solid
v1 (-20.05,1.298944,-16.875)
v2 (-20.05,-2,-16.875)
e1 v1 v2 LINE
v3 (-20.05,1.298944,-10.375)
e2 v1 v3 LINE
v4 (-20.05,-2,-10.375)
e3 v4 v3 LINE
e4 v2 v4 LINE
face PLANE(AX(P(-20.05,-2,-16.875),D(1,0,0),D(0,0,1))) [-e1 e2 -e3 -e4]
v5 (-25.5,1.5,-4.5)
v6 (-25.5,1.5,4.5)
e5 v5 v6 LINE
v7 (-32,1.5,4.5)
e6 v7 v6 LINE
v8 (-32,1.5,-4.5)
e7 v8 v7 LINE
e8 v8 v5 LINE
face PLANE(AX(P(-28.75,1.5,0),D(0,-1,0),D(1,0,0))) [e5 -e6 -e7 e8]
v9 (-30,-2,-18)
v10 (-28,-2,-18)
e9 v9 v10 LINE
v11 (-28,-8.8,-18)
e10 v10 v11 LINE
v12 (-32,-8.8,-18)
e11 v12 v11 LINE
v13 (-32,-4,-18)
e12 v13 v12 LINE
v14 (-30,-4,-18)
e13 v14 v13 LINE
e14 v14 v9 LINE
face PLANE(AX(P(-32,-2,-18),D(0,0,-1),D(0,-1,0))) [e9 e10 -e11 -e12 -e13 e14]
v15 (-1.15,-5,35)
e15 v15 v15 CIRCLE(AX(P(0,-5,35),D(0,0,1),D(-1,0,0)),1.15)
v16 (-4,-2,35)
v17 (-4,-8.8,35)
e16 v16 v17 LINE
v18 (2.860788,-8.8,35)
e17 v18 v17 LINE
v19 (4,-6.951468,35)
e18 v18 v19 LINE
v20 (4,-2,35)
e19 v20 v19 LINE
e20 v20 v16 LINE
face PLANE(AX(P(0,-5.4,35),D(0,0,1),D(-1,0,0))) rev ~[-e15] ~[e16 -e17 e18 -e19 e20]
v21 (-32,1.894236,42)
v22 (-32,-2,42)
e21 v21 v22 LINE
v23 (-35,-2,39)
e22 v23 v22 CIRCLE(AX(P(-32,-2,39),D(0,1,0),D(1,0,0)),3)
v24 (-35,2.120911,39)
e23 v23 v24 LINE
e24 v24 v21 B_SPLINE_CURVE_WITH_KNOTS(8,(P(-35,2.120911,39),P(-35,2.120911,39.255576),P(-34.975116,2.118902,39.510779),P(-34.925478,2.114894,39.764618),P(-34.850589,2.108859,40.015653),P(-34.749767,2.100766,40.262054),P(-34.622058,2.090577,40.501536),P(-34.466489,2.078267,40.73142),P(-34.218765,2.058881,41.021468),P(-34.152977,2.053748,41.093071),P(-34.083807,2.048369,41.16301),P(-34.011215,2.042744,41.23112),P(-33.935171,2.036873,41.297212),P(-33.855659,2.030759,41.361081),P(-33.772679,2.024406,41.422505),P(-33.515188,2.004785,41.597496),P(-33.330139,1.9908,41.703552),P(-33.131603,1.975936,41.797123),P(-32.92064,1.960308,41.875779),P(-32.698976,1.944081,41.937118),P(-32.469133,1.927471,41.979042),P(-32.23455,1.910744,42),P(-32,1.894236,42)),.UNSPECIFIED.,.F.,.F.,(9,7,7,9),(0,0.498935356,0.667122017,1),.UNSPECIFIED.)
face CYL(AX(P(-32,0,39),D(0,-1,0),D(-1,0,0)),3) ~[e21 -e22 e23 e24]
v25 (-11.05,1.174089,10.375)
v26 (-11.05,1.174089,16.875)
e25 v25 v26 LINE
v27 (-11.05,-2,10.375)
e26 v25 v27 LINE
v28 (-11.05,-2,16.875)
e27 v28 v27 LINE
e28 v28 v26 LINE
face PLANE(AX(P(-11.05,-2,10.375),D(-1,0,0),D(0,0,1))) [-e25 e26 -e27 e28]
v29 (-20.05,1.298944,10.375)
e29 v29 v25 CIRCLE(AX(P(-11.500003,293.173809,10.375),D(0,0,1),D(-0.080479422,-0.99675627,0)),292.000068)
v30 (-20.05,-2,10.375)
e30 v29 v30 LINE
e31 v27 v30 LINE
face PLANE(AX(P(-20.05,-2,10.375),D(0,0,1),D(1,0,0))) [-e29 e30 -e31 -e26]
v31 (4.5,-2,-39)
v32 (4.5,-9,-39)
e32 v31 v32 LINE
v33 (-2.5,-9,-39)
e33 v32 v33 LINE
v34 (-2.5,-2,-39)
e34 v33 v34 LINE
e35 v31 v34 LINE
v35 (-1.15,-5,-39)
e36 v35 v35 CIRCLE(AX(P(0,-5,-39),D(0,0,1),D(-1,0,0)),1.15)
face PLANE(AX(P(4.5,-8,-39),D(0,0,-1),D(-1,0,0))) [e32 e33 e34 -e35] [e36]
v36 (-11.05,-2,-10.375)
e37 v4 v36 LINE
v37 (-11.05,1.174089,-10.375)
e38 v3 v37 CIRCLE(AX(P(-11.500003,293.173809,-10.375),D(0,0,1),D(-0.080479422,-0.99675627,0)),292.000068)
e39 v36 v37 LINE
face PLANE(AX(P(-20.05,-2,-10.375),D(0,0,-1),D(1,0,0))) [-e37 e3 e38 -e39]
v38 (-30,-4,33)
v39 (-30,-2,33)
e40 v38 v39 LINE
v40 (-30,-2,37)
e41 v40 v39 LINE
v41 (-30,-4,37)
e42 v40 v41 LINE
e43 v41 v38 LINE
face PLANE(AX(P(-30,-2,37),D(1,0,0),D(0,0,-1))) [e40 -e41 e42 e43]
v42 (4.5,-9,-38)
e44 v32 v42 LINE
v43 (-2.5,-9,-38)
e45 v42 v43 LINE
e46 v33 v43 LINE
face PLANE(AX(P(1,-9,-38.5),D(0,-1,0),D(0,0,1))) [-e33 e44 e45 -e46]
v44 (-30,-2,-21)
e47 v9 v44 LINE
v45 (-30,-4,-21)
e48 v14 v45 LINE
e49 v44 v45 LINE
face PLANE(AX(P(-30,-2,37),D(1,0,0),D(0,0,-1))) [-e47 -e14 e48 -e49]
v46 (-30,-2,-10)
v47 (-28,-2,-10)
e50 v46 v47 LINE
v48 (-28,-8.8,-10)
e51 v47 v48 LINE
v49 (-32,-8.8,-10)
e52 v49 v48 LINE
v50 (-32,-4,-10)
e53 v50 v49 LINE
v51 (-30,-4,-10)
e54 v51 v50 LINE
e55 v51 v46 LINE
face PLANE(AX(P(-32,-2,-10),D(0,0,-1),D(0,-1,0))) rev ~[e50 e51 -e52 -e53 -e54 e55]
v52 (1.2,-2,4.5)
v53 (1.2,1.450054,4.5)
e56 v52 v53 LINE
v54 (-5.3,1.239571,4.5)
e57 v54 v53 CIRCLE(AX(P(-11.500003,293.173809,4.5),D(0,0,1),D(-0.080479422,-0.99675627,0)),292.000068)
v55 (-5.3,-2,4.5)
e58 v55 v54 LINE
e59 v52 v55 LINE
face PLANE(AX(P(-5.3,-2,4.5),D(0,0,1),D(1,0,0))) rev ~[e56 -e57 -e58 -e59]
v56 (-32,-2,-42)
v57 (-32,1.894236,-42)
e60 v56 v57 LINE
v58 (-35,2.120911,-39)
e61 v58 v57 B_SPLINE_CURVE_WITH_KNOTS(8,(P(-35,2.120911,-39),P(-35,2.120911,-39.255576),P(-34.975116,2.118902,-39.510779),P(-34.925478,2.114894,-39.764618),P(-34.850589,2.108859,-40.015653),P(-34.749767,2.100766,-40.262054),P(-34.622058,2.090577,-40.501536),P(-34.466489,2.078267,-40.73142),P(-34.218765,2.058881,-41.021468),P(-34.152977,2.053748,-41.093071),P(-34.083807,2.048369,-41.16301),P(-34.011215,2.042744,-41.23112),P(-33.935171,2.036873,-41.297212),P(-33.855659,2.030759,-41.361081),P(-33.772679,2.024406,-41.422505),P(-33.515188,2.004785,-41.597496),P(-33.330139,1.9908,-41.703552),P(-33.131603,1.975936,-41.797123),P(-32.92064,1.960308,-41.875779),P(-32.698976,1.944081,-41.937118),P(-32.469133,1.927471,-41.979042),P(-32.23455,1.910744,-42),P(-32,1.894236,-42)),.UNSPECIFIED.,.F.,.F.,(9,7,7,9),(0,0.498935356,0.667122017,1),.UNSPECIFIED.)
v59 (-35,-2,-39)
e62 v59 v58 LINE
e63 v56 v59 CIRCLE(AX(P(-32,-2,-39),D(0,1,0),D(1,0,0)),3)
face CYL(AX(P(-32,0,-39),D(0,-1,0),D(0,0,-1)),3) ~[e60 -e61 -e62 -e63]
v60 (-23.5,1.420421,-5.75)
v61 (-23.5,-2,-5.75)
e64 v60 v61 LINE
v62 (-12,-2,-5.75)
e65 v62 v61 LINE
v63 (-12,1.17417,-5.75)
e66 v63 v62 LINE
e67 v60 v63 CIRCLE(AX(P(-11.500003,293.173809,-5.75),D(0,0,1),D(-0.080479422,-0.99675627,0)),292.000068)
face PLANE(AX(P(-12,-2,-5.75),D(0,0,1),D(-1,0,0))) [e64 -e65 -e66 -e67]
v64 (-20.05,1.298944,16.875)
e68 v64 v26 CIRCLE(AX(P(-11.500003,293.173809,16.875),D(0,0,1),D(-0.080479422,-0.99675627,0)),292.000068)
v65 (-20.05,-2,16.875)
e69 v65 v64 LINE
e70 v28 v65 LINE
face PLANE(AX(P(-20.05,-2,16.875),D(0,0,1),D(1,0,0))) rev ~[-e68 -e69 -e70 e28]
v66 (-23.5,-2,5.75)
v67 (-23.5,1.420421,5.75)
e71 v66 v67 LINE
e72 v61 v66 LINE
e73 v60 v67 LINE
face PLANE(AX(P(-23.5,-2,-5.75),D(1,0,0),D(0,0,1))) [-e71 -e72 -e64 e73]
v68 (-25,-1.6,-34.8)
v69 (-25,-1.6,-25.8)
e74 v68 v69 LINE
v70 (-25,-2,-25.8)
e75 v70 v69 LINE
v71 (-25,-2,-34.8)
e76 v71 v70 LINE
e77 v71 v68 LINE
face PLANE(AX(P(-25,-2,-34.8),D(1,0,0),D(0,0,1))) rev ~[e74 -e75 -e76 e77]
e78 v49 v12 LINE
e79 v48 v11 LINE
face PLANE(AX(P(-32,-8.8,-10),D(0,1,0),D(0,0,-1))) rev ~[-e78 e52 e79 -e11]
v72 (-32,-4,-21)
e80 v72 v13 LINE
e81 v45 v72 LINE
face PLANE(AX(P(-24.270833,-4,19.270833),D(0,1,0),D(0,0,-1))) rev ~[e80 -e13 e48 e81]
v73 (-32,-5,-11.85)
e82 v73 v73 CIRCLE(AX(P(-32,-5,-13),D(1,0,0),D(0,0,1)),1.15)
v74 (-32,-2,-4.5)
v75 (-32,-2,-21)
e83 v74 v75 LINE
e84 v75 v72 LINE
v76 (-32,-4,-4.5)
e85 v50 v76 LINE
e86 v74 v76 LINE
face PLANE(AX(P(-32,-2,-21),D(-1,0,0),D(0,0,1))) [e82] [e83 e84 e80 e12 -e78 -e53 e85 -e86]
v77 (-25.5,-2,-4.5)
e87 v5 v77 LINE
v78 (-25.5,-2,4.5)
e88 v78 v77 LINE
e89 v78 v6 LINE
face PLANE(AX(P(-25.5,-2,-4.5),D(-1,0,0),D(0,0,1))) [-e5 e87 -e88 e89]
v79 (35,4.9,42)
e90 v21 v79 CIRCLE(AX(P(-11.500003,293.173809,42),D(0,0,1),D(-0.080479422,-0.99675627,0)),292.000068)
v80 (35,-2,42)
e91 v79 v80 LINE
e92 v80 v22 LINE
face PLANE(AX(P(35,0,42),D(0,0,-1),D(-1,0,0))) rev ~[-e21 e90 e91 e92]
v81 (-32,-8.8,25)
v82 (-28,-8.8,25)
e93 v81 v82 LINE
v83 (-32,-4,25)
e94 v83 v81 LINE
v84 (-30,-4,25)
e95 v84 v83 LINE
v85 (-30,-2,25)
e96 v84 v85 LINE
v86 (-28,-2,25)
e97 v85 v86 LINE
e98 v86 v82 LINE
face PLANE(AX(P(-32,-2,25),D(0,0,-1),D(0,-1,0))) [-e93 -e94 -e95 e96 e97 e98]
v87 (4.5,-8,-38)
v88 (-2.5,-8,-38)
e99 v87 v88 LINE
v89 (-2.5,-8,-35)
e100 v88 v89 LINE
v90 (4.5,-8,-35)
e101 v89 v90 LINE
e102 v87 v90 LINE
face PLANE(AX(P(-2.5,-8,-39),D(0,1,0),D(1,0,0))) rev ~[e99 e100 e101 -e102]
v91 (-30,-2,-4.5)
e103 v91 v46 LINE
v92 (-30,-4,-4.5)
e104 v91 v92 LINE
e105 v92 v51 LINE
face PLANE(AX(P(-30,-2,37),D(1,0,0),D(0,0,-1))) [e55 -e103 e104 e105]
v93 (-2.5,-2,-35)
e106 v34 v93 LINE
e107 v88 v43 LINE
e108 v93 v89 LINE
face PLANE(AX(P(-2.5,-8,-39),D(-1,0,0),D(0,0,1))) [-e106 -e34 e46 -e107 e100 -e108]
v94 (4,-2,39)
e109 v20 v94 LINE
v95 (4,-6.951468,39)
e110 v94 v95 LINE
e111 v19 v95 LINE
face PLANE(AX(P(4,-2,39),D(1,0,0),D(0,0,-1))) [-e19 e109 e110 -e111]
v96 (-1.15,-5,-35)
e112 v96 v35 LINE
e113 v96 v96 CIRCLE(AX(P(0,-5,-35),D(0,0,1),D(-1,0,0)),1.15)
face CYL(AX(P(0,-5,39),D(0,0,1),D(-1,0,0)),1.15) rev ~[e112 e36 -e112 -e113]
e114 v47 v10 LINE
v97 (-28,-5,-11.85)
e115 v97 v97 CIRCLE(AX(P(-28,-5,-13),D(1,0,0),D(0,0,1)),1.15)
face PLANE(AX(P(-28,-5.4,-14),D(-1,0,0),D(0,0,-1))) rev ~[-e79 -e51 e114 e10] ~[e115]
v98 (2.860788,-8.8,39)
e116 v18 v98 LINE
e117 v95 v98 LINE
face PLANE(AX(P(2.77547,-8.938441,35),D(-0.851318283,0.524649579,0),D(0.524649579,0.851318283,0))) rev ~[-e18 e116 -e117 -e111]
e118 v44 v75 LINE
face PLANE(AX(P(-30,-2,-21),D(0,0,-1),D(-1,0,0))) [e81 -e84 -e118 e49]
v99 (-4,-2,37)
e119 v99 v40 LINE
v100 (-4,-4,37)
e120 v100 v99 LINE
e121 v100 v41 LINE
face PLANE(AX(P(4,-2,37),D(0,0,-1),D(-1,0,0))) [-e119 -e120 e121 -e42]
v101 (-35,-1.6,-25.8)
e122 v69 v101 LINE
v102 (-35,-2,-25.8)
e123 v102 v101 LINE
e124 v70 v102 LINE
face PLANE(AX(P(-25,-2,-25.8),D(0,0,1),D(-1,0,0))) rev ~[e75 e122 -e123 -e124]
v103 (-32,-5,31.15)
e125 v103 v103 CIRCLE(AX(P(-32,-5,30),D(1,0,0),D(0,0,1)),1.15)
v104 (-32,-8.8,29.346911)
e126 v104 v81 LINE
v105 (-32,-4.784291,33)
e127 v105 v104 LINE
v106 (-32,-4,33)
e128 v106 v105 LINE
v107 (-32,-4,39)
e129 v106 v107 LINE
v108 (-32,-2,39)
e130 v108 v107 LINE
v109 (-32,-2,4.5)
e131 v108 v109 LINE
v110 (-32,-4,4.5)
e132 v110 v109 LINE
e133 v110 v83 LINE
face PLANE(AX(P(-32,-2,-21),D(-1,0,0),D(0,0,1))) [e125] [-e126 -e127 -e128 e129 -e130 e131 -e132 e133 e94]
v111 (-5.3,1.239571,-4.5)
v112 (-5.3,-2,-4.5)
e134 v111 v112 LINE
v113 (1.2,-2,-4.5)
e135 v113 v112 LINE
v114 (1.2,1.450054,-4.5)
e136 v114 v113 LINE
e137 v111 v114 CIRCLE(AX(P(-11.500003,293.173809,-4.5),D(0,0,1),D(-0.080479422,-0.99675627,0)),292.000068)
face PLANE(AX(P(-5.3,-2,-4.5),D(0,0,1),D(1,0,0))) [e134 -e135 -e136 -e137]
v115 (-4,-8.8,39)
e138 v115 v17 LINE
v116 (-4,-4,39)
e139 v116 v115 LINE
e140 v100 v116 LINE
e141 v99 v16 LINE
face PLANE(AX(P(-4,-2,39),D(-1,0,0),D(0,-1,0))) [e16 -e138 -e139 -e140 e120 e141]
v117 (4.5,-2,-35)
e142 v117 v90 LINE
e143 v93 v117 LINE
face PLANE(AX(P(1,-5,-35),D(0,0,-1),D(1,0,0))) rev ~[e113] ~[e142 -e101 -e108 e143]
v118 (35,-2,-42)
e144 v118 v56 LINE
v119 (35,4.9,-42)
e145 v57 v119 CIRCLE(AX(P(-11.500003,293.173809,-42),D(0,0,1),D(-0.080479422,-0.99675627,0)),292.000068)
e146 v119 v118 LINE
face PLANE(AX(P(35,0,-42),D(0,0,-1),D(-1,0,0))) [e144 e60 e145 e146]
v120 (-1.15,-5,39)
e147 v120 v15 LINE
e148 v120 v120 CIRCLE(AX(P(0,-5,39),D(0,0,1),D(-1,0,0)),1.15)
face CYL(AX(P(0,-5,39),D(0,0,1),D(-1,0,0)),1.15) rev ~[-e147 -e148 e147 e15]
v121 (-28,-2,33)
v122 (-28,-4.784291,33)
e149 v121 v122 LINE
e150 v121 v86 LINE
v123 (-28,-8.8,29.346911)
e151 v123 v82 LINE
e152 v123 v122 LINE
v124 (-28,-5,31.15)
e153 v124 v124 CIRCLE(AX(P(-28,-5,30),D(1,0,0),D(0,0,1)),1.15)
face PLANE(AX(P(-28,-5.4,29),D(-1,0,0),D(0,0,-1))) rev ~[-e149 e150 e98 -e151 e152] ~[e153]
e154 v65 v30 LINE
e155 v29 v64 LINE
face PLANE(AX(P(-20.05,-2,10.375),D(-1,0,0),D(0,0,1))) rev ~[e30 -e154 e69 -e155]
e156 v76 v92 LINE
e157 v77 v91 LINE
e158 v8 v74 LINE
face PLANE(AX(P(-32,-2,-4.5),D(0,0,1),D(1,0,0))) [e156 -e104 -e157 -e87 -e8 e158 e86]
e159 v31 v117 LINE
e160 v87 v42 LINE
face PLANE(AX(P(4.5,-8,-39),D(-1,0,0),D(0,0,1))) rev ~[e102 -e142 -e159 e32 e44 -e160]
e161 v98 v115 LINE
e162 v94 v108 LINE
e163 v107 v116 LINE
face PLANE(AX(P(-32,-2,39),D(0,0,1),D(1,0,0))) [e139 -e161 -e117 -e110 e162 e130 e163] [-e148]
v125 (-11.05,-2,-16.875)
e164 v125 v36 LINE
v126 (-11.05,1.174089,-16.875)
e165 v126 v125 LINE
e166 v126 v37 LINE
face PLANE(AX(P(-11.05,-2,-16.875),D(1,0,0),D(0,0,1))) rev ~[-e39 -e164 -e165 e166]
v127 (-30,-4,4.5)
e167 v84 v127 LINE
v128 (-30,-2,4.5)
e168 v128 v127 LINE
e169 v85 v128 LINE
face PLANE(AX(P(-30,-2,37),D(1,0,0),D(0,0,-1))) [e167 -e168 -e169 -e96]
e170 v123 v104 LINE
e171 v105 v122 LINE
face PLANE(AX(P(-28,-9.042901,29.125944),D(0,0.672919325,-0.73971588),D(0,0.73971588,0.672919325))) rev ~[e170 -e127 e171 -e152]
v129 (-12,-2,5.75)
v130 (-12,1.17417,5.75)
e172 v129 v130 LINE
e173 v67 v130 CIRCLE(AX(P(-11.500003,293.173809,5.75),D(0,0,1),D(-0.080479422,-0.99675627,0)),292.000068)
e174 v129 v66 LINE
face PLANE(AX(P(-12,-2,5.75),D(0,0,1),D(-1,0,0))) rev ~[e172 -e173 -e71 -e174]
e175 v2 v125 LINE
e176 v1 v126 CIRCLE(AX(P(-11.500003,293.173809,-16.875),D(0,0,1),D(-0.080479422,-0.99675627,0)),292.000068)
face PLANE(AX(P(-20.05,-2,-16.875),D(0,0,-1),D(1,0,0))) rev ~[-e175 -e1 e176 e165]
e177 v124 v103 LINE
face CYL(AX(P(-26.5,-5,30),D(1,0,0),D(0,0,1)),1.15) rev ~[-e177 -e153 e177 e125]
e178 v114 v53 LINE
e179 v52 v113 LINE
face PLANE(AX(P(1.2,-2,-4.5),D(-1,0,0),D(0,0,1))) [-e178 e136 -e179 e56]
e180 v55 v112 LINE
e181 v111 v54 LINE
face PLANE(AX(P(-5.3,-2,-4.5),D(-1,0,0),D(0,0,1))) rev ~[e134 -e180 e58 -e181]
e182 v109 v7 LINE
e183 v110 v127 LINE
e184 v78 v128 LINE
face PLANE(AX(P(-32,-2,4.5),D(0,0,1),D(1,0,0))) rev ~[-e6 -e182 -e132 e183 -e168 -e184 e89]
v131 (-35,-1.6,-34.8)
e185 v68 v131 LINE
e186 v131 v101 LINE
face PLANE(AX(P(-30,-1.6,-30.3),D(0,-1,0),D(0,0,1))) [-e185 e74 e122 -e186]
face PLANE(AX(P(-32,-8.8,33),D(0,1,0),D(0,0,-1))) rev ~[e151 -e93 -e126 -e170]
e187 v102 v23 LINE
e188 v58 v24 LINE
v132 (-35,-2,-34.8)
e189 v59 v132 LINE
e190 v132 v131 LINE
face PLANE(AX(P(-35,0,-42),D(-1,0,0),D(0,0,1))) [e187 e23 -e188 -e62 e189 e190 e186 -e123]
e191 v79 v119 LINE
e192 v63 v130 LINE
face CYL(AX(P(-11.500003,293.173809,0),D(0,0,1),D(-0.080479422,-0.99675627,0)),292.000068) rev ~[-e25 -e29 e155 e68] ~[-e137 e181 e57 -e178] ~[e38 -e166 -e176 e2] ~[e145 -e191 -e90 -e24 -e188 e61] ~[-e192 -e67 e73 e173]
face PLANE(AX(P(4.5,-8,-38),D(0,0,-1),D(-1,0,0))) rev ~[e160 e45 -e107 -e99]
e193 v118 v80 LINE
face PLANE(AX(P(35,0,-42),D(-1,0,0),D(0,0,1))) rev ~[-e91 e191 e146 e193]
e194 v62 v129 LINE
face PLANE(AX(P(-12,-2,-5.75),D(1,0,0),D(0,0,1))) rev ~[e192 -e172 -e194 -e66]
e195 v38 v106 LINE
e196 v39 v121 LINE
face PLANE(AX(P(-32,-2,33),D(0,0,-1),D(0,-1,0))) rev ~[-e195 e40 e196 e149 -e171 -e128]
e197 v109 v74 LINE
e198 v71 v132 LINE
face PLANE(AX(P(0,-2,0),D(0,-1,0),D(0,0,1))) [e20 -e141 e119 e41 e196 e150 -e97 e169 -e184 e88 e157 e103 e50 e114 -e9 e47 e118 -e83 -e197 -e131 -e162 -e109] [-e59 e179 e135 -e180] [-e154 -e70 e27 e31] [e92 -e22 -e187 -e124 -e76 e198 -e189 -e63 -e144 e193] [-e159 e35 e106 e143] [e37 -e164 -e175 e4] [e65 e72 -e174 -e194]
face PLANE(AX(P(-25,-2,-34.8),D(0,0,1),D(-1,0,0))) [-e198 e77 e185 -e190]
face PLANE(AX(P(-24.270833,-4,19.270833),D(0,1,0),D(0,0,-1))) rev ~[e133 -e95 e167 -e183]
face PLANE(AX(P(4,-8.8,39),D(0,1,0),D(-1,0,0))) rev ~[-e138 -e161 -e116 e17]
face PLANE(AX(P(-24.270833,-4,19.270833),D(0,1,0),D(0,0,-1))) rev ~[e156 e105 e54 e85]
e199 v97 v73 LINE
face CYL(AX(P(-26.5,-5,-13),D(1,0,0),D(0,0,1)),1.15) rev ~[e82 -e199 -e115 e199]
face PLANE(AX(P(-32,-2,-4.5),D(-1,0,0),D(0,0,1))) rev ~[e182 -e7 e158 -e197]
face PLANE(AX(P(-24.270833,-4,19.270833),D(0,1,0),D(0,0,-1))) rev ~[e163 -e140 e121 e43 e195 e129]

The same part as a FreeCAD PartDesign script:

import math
import FreeCAD as App
import Part
import Sketcher

V = App.Vector
Q = App.Units.Quantity


def edges_at(feature, points):
    """Names of the edges that pass closest to the given points."""
    edges = feature.Shape.Edges
    near = lambda p: min(range(len(edges)), key=lambda i: edges[i].distToShape(Part.Vertex(*p))[0])
    return sorted({f"Edge{near(p) + 1}" for p in points})

doc = App.newDocument("Part")
body = doc.addObject("PartDesign::Body", "Body")

# Sketch on XY plane
sketch1 = doc.addObject("Sketcher::SketchObject", "Sketch")
body.addObject(sketch1)
sketch1.AttachmentSupport = (doc.XY_Plane, [""])
sketch1.MapMode = "FlatFace"
sketch1.addGeometry([
    Part.LineSegment(V(-42, 35, 0), V(-42, -35, 0)),
    Part.LineSegment(V(-42, -35, 0), V(42, -35, 0)),
    Part.LineSegment(V(42, -35, 0), V(42, 35, 0)),
    Part.LineSegment(V(42, 35, 0), V(-42, 35, 0)),
], False)
sketch1.addConstraint([
    Sketcher.Constraint("Coincident", 0, 2, 1, 1),
    Sketcher.Constraint("Coincident", 1, 2, 2, 1),
    Sketcher.Constraint("Coincident", 2, 2, 3, 1),
    Sketcher.Constraint("Coincident", 3, 2, 0, 1),
    Sketcher.Constraint("Vertical", 0),
    Sketcher.Constraint("Horizontal", 1),
    Sketcher.Constraint("Vertical", 2),
    Sketcher.Constraint("Horizontal", 3),
    Sketcher.Constraint("Symmetric", 0, 2, 2, 2, -1, 1),
    Sketcher.Constraint("DistanceX", 1, 1, 1, 2, Q("84 mm")),
    Sketcher.Constraint("DistanceY", 0, 2, 0, 1, Q("70 mm")),
])
pad1 = doc.addObject("PartDesign::Pad", "Pad")
body.addObject(pad1)
pad1.Profile = sketch1
pad1.Length = 2

# Sketch on XY plane
sketch2 = doc.addObject("Sketcher::SketchObject", "Sketch001")
body.addObject(sketch2)
sketch2.AttachmentSupport = (doc.XY_Plane, [""])
sketch2.MapMode = "FlatFace"
sketch2.AttachmentOffset = App.Placement(V(0, 0, 2), App.Rotation())
sketch2.addGeometry([
    Part.LineSegment(V(-39, 2.5, 0), V(-39, -4.5, 0)),  # 0
    Part.LineSegment(V(-39, -4.5, 0), V(-37, -4.5, 0)),  # 1
    Part.LineSegment(V(-37, -4.5, 0), V(-37, 2.5, 0)),  # 2
    Part.LineSegment(V(-37, 2.5, 0), V(-39, 2.5, 0)),  # 3
    Part.LineSegment(V(39, 32, 0), V(-21, 32, 0)),  # 4
    Part.LineSegment(V(-21, 32, 0), V(-21, 30, 0)),  # 5
    Part.LineSegment(V(-21, 30, 0), V(37, 30, 0)),  # 6
    Part.LineSegment(V(37, 30, 0), V(37, -4, 0)),  # 7
    Part.LineSegment(V(37, -4, 0), V(39, -4, 0)),  # 8
    Part.LineSegment(V(39, -4, 0), V(39, 32, 0)),  # 9
], False)
sketch2.addConstraint([
    Sketcher.Constraint("Coincident", 0, 2, 1, 1),
    Sketcher.Constraint("Coincident", 1, 2, 2, 1),
    Sketcher.Constraint("Coincident", 2, 2, 3, 1),
    Sketcher.Constraint("Coincident", 3, 2, 0, 1),
    Sketcher.Constraint("Coincident", 4, 2, 5, 1),
    Sketcher.Constraint("Coincident", 5, 2, 6, 1),
    Sketcher.Constraint("Coincident", 6, 2, 7, 1),
    Sketcher.Constraint("Coincident", 7, 2, 8, 1),
    Sketcher.Constraint("Coincident", 8, 2, 9, 1),
    Sketcher.Constraint("Coincident", 9, 2, 4, 1),
    Sketcher.Constraint("Vertical", 0),
    Sketcher.Constraint("Horizontal", 1),
    Sketcher.Constraint("Vertical", 2),
    Sketcher.Constraint("Horizontal", 3),
    Sketcher.Constraint("Horizontal", 4),
    Sketcher.Constraint("Vertical", 5),
    Sketcher.Constraint("Horizontal", 6),
    Sketcher.Constraint("Vertical", 7),
    Sketcher.Constraint("Horizontal", 8),
    Sketcher.Constraint("Vertical", 9),
    Sketcher.Constraint("Equal", 3, 8),
    Sketcher.Constraint("Equal", 8, 5),
    Sketcher.Constraint("DistanceX", 1, 1, 1, 2, Q("2 mm")),
    Sketcher.Constraint("DistanceX", 4, 2, 4, 1, Q("60 mm")),
    Sketcher.Constraint("DistanceY", 0, 2, 0, 1, Q("7 mm")),
    Sketcher.Constraint("DistanceY", 7, 2, 7, 1, Q("34 mm")),
    Sketcher.Constraint("DistanceX", 0, 2, -1, 1, Q("39 mm")),
    Sketcher.Constraint("DistanceX", 4, 2, -1, 1, Q("21 mm")),
    Sketcher.Constraint("DistanceY", -1, 1, 4, 2, Q("32 mm")),
    Sketcher.Constraint("DistanceY", 0, 2, -1, 1, Q("4.5 mm")),
])
pad2 = doc.addObject("PartDesign::Pad", "Pad001")
body.addObject(pad2)
pad2.Profile = sketch2
pad2.Length = 2

# Sketch on YZ plane
sketch3 = doc.addObject("Sketcher::SketchObject", "Sketch002")
body.addObject(sketch3)
sketch3.AttachmentSupport = (doc.YZ_Plane, [""])
sketch3.MapMode = "FlatFace"
sketch3.AttachmentOffset = App.Placement(V(0, 0, 39), App.Rotation())
sketch3.addGeometry([
    Part.LineSegment(V(-4, 9, 0), V(-4, 2, 0)),
    Part.LineSegment(V(-4, 2, 0), V(4, 2, 0)),
    Part.LineSegment(V(4, 2, 0), V(4, 9, 0)),
    Part.LineSegment(V(4, 9, 0), V(-4, 9, 0)),
], False)
sketch3.addConstraint([
    Sketcher.Constraint("Coincident", 0, 2, 1, 1),
    Sketcher.Constraint("Coincident", 1, 2, 2, 1),
    Sketcher.Constraint("Coincident", 2, 2, 3, 1),
    Sketcher.Constraint("Coincident", 3, 2, 0, 1),
    Sketcher.Constraint("Vertical", 0),
    Sketcher.Constraint("Horizontal", 1),
    Sketcher.Constraint("Vertical", 2),
    Sketcher.Constraint("Horizontal", 3),
    Sketcher.Constraint("DistanceX", 1, 1, 1, 2, Q("8 mm")),
    Sketcher.Constraint("DistanceY", 0, 2, 0, 1, Q("6.8 mm")),
    Sketcher.Constraint("DistanceX", 0, 2, -1, 1, Q("4 mm")),
    Sketcher.Constraint("DistanceY", -1, 1, 0, 2, Q("2 mm")),
])
pad3 = doc.addObject("PartDesign::Pad", "Pad002")
body.addObject(pad3)
pad3.Profile = sketch3
pad3.Length = 4
pad3.Reversed = True

# Sketch on YZ plane
sketch4 = doc.addObject("Sketcher::SketchObject", "Sketch003")
body.addObject(sketch4)
sketch4.AttachmentSupport = (doc.YZ_Plane, [""])
sketch4.MapMode = "FlatFace"
sketch4.AttachmentOffset = App.Placement(V(0, 0, -39), App.Rotation())
sketch4.addGeometry([
    Part.LineSegment(V(2, 8, 0), V(2, 2, 0)),
    Part.LineSegment(V(2, 2, 0), V(-4, 2, 0)),
    Part.LineSegment(V(-4, 2, 0), V(-4, 8, 0)),
    Part.LineSegment(V(-4, 8, 0), V(2, 8, 0)),
], False)
sketch4.addConstraint([
    Sketcher.Constraint("Coincident", 0, 2, 1, 1),
    Sketcher.Constraint("Coincident", 1, 2, 2, 1),
    Sketcher.Constraint("Coincident", 2, 2, 3, 1),
    Sketcher.Constraint("Coincident", 3, 2, 0, 1),
    Sketcher.Constraint("Vertical", 0),
    Sketcher.Constraint("Horizontal", 1),
    Sketcher.Constraint("Vertical", 2),
    Sketcher.Constraint("Horizontal", 3),
    Sketcher.Constraint("DistanceX", 1, 2, 1, 1, Q("7 mm")),
    Sketcher.Constraint("DistanceY", 0, 2, 0, 1, Q("6 mm")),
    Sketcher.Constraint("DistanceY", -1, 1, 0, 2, Q("2 mm")),
    Sketcher.Constraint("DistanceX", -1, 1, 0, 2, Q("2.5 mm")),
])
pad4 = doc.addObject("PartDesign::Pad", "Pad003")
body.addObject(pad4)
pad4.Profile = sketch4
pad4.Length = 4

# Sketch on XZ plane
sketch5 = doc.addObject("Sketcher::SketchObject", "Sketch004")
body.addObject(sketch5)
sketch5.AttachmentSupport = (doc.XZ_Plane, [""])
sketch5.MapMode = "FlatFace"
sketch5.AttachmentOffset = App.Placement(V(0, 0, -32), App.Rotation())
sketch5.addGeometry([
    Part.LineSegment(V(33, 9, 0), V(33, 2, 0)),  # 0
    Part.LineSegment(V(33, 2, 0), V(25, 2, 0)),  # 1
    Part.LineSegment(V(25, 2, 0), V(25, 9, 0)),  # 2
    Part.LineSegment(V(25, 9, 0), V(33, 9, 0)),  # 3
    Part.LineSegment(V(-10, 9, 0), V(-10, 2, 0)),  # 4
    Part.LineSegment(V(-10, 2, 0), V(-18, 2, 0)),  # 5
    Part.LineSegment(V(-18, 2, 0), V(-18, 9, 0)),  # 6
    Part.LineSegment(V(-18, 9, 0), V(-10, 9, 0)),  # 7
], False)
sketch5.addConstraint([
    Sketcher.Constraint("Coincident", 0, 2, 1, 1),
    Sketcher.Constraint("Coincident", 1, 2, 2, 1),
    Sketcher.Constraint("Coincident", 2, 2, 3, 1),
    Sketcher.Constraint("Coincident", 3, 2, 0, 1),
    Sketcher.Constraint("Coincident", 4, 2, 5, 1),
    Sketcher.Constraint("Coincident", 5, 2, 6, 1),
    Sketcher.Constraint("Coincident", 6, 2, 7, 1),
    Sketcher.Constraint("Coincident", 7, 2, 4, 1),
    Sketcher.Constraint("Vertical", 0),
    Sketcher.Constraint("Horizontal", 1),
    Sketcher.Constraint("Vertical", 2),
    Sketcher.Constraint("Horizontal", 3),
    Sketcher.Constraint("Vertical", 4),
    Sketcher.Constraint("Horizontal", 5),
    Sketcher.Constraint("Vertical", 6),
    Sketcher.Constraint("Horizontal", 7),
    Sketcher.Constraint("Horizontal", 1, 2, 4, 2),
    Sketcher.Constraint("Horizontal", 3, 2, 6, 2),
    Sketcher.Constraint("Equal", 3, 5),
    Sketcher.Constraint("DistanceX", 1, 2, 1, 1, Q("8 mm")),
    Sketcher.Constraint("DistanceY", 0, 2, 0, 1, Q("6.8 mm")),
    Sketcher.Constraint("DistanceX", -1, 1, 0, 2, Q("33 mm")),
    Sketcher.Constraint("DistanceY", -1, 1, 0, 2, Q("2 mm")),
    Sketcher.Constraint("DistanceX", 4, 2, -1, 1, Q("10 mm")),
])
pad5 = doc.addObject("PartDesign::Pad", "Pad004")
body.addObject(pad5)
pad5.Profile = sketch5
pad5.Length = 4

# Sketch on YZ plane
sketch6 = doc.addObject("Sketcher::SketchObject", "Sketch005")
body.addObject(sketch6)
sketch6.AttachmentSupport = (doc.YZ_Plane, [""])
sketch6.MapMode = "FlatFace"
sketch6.AttachmentOffset = App.Placement(V(0, 0, 39), App.Rotation())
sketch6.addGeometry(Part.Circle(V(0, 5, 0), V(0, 0, 1), 1.1), False)
sketch6.addConstraint([
    Sketcher.Constraint("PointOnObject", 0, 3, -2),
    Sketcher.Constraint("Diameter", 0, Q("2.3 mm")),
    Sketcher.Constraint("DistanceY", -1, 1, 0, 3, Q("5 mm")),
])
pocket1 = doc.addObject("PartDesign::Pocket", "Pocket")
body.addObject(pocket1)
pocket1.Profile = sketch6
pocket1.Type = "ThroughAll"

# Sketch on XZ plane
sketch7 = doc.addObject("Sketcher::SketchObject", "Sketch006")
body.addObject(sketch7)
sketch7.AttachmentSupport = (doc.XZ_Plane, [""])
sketch7.MapMode = "FlatFace"
sketch7.AttachmentOffset = App.Placement(V(0, 0, -26.5), App.Rotation())
sketch7.addGeometry([
    Part.Circle(V(-13, 5, 0), V(0, 0, 1), 1.1),
    Part.Circle(V(30, 5, 0), V(0, 0, 1), 1.1),
], False)
sketch7.addConstraint([
    Sketcher.Constraint("Equal", 0, 1),
    Sketcher.Constraint("Horizontal", 0, 3, 1, 3),
    Sketcher.Constraint("Diameter", 0, Q("2.3 mm")),
    Sketcher.Constraint("DistanceX", 0, 3, -1, 1, Q("13 mm")),
    Sketcher.Constraint("DistanceY", -1, 1, 0, 3, Q("5 mm")),
    Sketcher.Constraint("DistanceX", -1, 1, 1, 3, Q("30 mm")),
])
pocket2 = doc.addObject("PartDesign::Pocket", "Pocket001")
body.addObject(pocket2)
pocket2.Profile = sketch7
pocket2.Type = "ThroughAll"

# Sketch on XY plane
sketch8 = doc.addObject("Sketcher::SketchObject", "Sketch007")
body.addObject(sketch8)
sketch8.AttachmentSupport = (doc.XY_Plane, [""])
sketch8.MapMode = "FlatFace"
sketch8.AttachmentOffset = App.Placement(V(0, 0, 2), App.Rotation())
sketch8.addGeometry([
    Part.LineSegment(V(-6, 24, 0), V(-6, 12, 0)),
    Part.LineSegment(V(-6, 12, 0), V(6, 12, 0)),
    Part.LineSegment(V(6, 12, 0), V(6, 24, 0)),
    Part.LineSegment(V(6, 24, 0), V(-6, 24, 0)),
], False)
sketch8.addConstraint([
    Sketcher.Constraint("Coincident", 0, 2, 1, 1),
    Sketcher.Constraint("Coincident", 1, 2, 2, 1),
    Sketcher.Constraint("Coincident", 2, 2, 3, 1),
    Sketcher.Constraint("Coincident", 3, 2, 0, 1),
    Sketcher.Constraint("Vertical", 0),
    Sketcher.Constraint("Horizontal", 1),
    Sketcher.Constraint("Vertical", 2),
    Sketcher.Constraint("Horizontal", 3),
    Sketcher.Constraint("Equal", 3, 0),
    Sketcher.Constraint("DistanceX", 1, 1, 1, 2, Q("11.5 mm")),
    Sketcher.Constraint("DistanceY", -1, 1, 0, 2, Q("12 mm")),
    Sketcher.Constraint("DistanceX", 0, 2, -1, 1, Q("5.75 mm")),
])
pocket3 = doc.addObject("PartDesign::Pocket", "Pocket002")
body.addObject(pocket3)
pocket3.Profile = sketch8
pocket3.Length = 5

# Sketch on XZ plane
sketch9 = doc.addObject("Sketcher::SketchObject", "Sketch008")
body.addObject(sketch9)
sketch9.AttachmentSupport = (doc.XZ_Plane, [""])
sketch9.MapMode = "FlatFace"
sketch9.AttachmentOffset = App.Placement(V(0, 0, -28), App.Rotation())
sketch9.addGeometry([
    Part.LineSegment(V(29.1, 9, 0), V(33.3, 4.5, 0)),
    Part.LineSegment(V(33.3, 4.5, 0), V(33.3, 9, 0)),
    Part.LineSegment(V(33.3, 9, 0), V(29.1, 9, 0)),
], False)
sketch9.addConstraint([
    Sketcher.Constraint("Coincident", 0, 2, 1, 1),
    Sketcher.Constraint("Coincident", 1, 2, 2, 1),
    Sketcher.Constraint("Coincident", 2, 2, 0, 1),
    Sketcher.Constraint("Vertical", 1),
    Sketcher.Constraint("Horizontal", 2),
    Sketcher.Constraint("DistanceY", -1, 1, 1, 2, Q("9.042901 mm")),
    Sketcher.Constraint("DistanceX", 2, 2, 2, 1, Q("4.132925 mm")),
    Sketcher.Constraint("DistanceY", 1, 1, 1, 2, Q("4.543175 mm")),
    Sketcher.Constraint("DistanceX", -1, 1, 0, 2, Q("33.258869 mm")),
])
pocket4 = doc.addObject("PartDesign::Pocket", "Pocket003")
body.addObject(pocket4)
pocket4.Profile = sketch9
pocket4.Length = 5

# Sketch on YZ plane
sketch10 = doc.addObject("Sketcher::SketchObject", "Sketch009")
body.addObject(sketch10)
sketch10.AttachmentSupport = (doc.YZ_Plane, [""])
sketch10.MapMode = "FlatFace"
sketch10.AttachmentOffset = App.Placement(V(0, 0, 35), App.Rotation())
sketch10.addGeometry([
    Part.LineSegment(V(-2.8, 8.9, 0), V(-6.4, 3.1, 0)),
    Part.LineSegment(V(-6.4, 3.1, 0), V(-6.4, 8.9, 0)),
    Part.LineSegment(V(-6.4, 8.9, 0), V(-2.8, 8.9, 0)),
], False)
sketch10.addConstraint([
    Sketcher.Constraint("Coincident", 0, 2, 1, 1),
    Sketcher.Constraint("Coincident", 1, 2, 2, 1),
    Sketcher.Constraint("Coincident", 2, 2, 0, 1),
    Sketcher.Constraint("Vertical", 1),
    Sketcher.Constraint("Horizontal", 2),
    Sketcher.Constraint("DistanceX", 2, 1, 2, 2, Q("3.610701 mm")),
    Sketcher.Constraint("Distance", 0, Q("6.882119 mm")),
    Sketcher.Constraint("DistanceX", 0, 2, -1, 1, Q("6.386171 mm")),
    Sketcher.Constraint("DistanceY", -1, 1, 1, 2, Q("8.938441 mm")),
])
pocket5 = doc.addObject("PartDesign::Pocket", "Pocket004")
body.addObject(pocket5)
pocket5.Profile = sketch10
pocket5.Length = 5
pocket5.Reversed = True

# Sketch on XY plane
sketch11 = doc.addObject("Sketcher::SketchObject", "Sketch010")
body.addObject(sketch11)
sketch11.AttachmentSupport = (doc.XY_Plane, [""])
sketch11.MapMode = "FlatFace"
sketch11.AttachmentOffset = App.Placement(V(0, 0, 8), App.Rotation())
sketch11.addGeometry([
    Part.LineSegment(V(-39, 2.5, 0), V(-39, -4.5, 0)),
    Part.LineSegment(V(-39, -4.5, 0), V(-38, -4.5, 0)),
    Part.LineSegment(V(-38, -4.5, 0), V(-38, 2.5, 0)),
    Part.LineSegment(V(-38, 2.5, 0), V(-39, 2.5, 0)),
], False)
sketch11.addConstraint([
    Sketcher.Constraint("Coincident", 0, 2, 1, 1),
    Sketcher.Constraint("Coincident", 1, 2, 2, 1),
    Sketcher.Constraint("Coincident", 2, 2, 3, 1),
    Sketcher.Constraint("Coincident", 3, 2, 0, 1),
    Sketcher.Constraint("Vertical", 0),
    Sketcher.Constraint("Horizontal", 1),
    Sketcher.Constraint("Vertical", 2),
    Sketcher.Constraint("Horizontal", 3),
    Sketcher.Constraint("DistanceX", 1, 1, 1, 2, Q("1 mm")),
    Sketcher.Constraint("DistanceY", 0, 2, 0, 1, Q("7 mm")),
    Sketcher.Constraint("DistanceX", 0, 2, -1, 1, Q("39 mm")),
    Sketcher.Constraint("DistanceY", 0, 2, -1, 1, Q("4.5 mm")),
])
pad6 = doc.addObject("PartDesign::Pad", "Pad005")
body.addObject(pad6)
pad6.Profile = sketch11
pad6.Length = 1

# Sketch on XY plane
sketch12 = doc.addObject("Sketcher::SketchObject", "Sketch011")
body.addObject(sketch12)
sketch12.AttachmentSupport = (doc.XY_Plane, [""])
sketch12.MapMode = "FlatFace"
sketch12.AttachmentOffset = App.Placement(V(0, 0, 2), App.Rotation())
sketch12.addGeometry([
    Part.LineSegment(V(-35, 35, 0), V(-35, 25, 0)),
    Part.LineSegment(V(-35, 25, 0), V(-26, 25, 0)),
    Part.LineSegment(V(-26, 25, 0), V(-26, 35, 0)),
    Part.LineSegment(V(-26, 35, 0), V(-35, 35, 0)),
], False)
sketch12.addConstraint([
    Sketcher.Constraint("Coincident", 0, 2, 1, 1),
    Sketcher.Constraint("Coincident", 1, 2, 2, 1),
    Sketcher.Constraint("Coincident", 2, 2, 3, 1),
    Sketcher.Constraint("Coincident", 3, 2, 0, 1),
    Sketcher.Constraint("Vertical", 0),
    Sketcher.Constraint("Horizontal", 1),
    Sketcher.Constraint("Vertical", 2),
    Sketcher.Constraint("Horizontal", 3),
    Sketcher.Constraint("DistanceX", 1, 1, 1, 2, Q("9 mm")),
    Sketcher.Constraint("DistanceY", 0, 2, 0, 1, Q("10 mm")),
    Sketcher.Constraint("DistanceY", -1, 1, 0, 2, Q("25 mm")),
    Sketcher.Constraint("DistanceX", 0, 2, -1, 1, Q("34.8 mm")),
])
pocket6 = doc.addObject("PartDesign::Pocket", "Pocket005")
body.addObject(pocket6)
pocket6.Profile = sketch12
pocket6.Length = 0.4
doc.recompute()

fillet = doc.addObject("PartDesign::Fillet", "Fillet")
body.addObject(fillet)
fillet.Base = (pocket6, edges_at(pocket6, [(42, 35, 1), (-42, 35, 1)]))
fillet.Radius = 3
body2 = doc.addObject("PartDesign::Body", "Body001")
doc.recompute()

body.Placement = App.Placement(V(0, 0, 0), App.Rotation(V(0, 1, 0), 270))
boolean = doc.addObject("PartDesign::Boolean", "Boolean")
body2.addObject(boolean)
boolean.Type = "Fuse"
boolean.addObjects([body])
body3 = doc.addObject("PartDesign::Body", "Body002")
doc.recompute()

body2.Placement = App.Placement(V(0, 0, 0), App.Rotation(V(0, 0, 1), 90))
boolean2 = doc.addObject("PartDesign::Boolean", "Boolean001")
body3.addObject(boolean2)
boolean2.Type = "Fuse"
boolean2.addObjects([body2])
body4 = doc.addObject("PartDesign::Body", "Body003")

# Sketch on XY plane
sketch13 = doc.addObject("Sketcher::SketchObject", "Sketch012")
body4.addObject(sketch13)
sketch13.AttachmentSupport = (doc.getObject("XY_Plane003"), [""])
sketch13.MapMode = "FlatFace"
sketch13.addGeometry([
    Part.ArcOfCircle(Part.Circle(V(-11.5, 293.2, 0), V(0, 0, 1), 292), math.radians(-94.62), math.radians(-80.84)),
    Part.LineSegment(V(-35, 2.1, 0), V(-35, -0.1, 0)),
    Part.LineSegment(V(-35, -0.1, 0), V(35, -0.1, 0)),
    Part.LineSegment(V(35, -0.1, 0), V(35, 4.9, 0)),
], False)
sketch13.addConstraint([
    Sketcher.Constraint("Coincident", 0, 1, 1, 1),
    Sketcher.Constraint("Coincident", 1, 2, 2, 1),
    Sketcher.Constraint("Coincident", 2, 2, 3, 1),
    Sketcher.Constraint("Coincident", 3, 2, 0, 2),
    Sketcher.Constraint("Vertical", 1),
    Sketcher.Constraint("Horizontal", 2),
    Sketcher.Constraint("Vertical", 3),
    Sketcher.Constraint("DistanceX", 2, 1, 2, 2, Q("70 mm")),
    Sketcher.Constraint("DistanceY", 3, 1, 3, 2, Q("5 mm")),
    Sketcher.Constraint("DistanceX", 1, 2, -1, 1, Q("35 mm")),
    Sketcher.Constraint("DistanceY", 1, 2, -1, 1, Q("0.1 mm")),
    Sketcher.Constraint("Radius", 0, Q("292.000068 mm")),
    Sketcher.Constraint("DistanceY", 1, 2, 1, 1, Q("2.220911 mm")),
])
pad7 = doc.addObject("PartDesign::Pad", "Pad006")
body4.addObject(pad7)
pad7.Profile = sketch13
pad7.Length = 84
pad7.Midplane = True

# Sketch on XZ plane
sketch14 = doc.addObject("Sketcher::SketchObject", "Sketch013")
body4.addObject(sketch14)
sketch14.AttachmentSupport = (doc.getObject("XZ_Plane003"), [""])
sketch14.MapMode = "FlatFace"
sketch14.AttachmentOffset = App.Placement(V(0, 0, 0.1), App.Rotation())
sketch14.addGeometry([
    Part.LineSegment(V(-24, 6, 0), V(-24, -6, 0)),
    Part.LineSegment(V(-24, -6, 0), V(-12, -6, 0)),
    Part.LineSegment(V(-12, -6, 0), V(-12, 6, 0)),
    Part.LineSegment(V(-12, 6, 0), V(-24, 6, 0)),
], False)
sketch14.addConstraint([
    Sketcher.Constraint("Coincident", 0, 2, 1, 1),
    Sketcher.Constraint("Coincident", 1, 2, 2, 1),
    Sketcher.Constraint("Coincident", 2, 2, 3, 1),
    Sketcher.Constraint("Coincident", 3, 2, 0, 1),
    Sketcher.Constraint("Vertical", 0),
    Sketcher.Constraint("Horizontal", 1),
    Sketcher.Constraint("Vertical", 2),
    Sketcher.Constraint("Horizontal", 3),
    Sketcher.Constraint("Equal", 3, 0),
    Sketcher.Constraint("DistanceX", 1, 1, 1, 2, Q("11.5 mm")),
    Sketcher.Constraint("DistanceX", 1, 2, -1, 1, Q("12 mm")),
    Sketcher.Constraint("DistanceY", 0, 2, -1, 1, Q("5.75 mm")),
])
pocket7 = doc.addObject("PartDesign::Pocket", "Pocket006")
body4.addObject(pocket7)
pocket7.Profile = sketch14
pocket7.Length = 13
doc.recompute()

fillet2 = doc.addObject("PartDesign::Fillet", "Fillet001")
body4.addObject(fillet2)
fillet2.Base = (pocket7, edges_at(pocket7, [(-35, 1.01, -42), (-35, 1.01, 42)]))
fillet2.Radius = 3
doc.recompute()

boolean3 = doc.addObject("PartDesign::Boolean", "Boolean002")
body4.addObject(boolean3)
boolean3.Type = "Fuse"
boolean3.addObjects([body3])

# Sketch on XZ plane
sketch15 = doc.addObject("Sketcher::SketchObject", "Sketch014")
body4.addObject(sketch15)
sketch15.AttachmentSupport = (doc.getObject("XZ_Plane003"), [""])
sketch15.MapMode = "FlatFace"
sketch15.AttachmentOffset = App.Placement(V(0, 0, 2), App.Rotation())
sketch15.addGeometry([
    Part.LineSegment(V(-32, 4, 0), V(-32, -4, 0)),  # 0
    Part.LineSegment(V(-32, -4, 0), V(-26, -4, 0)),  # 1
    Part.LineSegment(V(-26, -4, 0), V(-26, 4, 0)),  # 2
    Part.LineSegment(V(-26, 4, 0), V(-32, 4, 0)),  # 3
    Part.LineSegment(V(-20, 17, 0), V(-20, 10, 0)),  # 4
    Part.LineSegment(V(-20, 10, 0), V(-11, 10, 0)),  # 5
    Part.LineSegment(V(-11, 10, 0), V(-11, 17, 0)),  # 6
    Part.LineSegment(V(-11, 17, 0), V(-20, 17, 0)),  # 7
    Part.LineSegment(V(-5, 4, 0), V(-5, -4, 0)),  # 8
    Part.LineSegment(V(-5, -4, 0), V(1, -4, 0)),  # 9
    Part.LineSegment(V(1, -4, 0), V(1, 4, 0)),  # 10
    Part.LineSegment(V(1, 4, 0), V(-5, 4, 0)),  # 11
    Part.LineSegment(V(-20, -10, 0), V(-20, -17, 0)),  # 12
    Part.LineSegment(V(-20, -17, 0), V(-11, -17, 0)),  # 13
    Part.LineSegment(V(-11, -17, 0), V(-11, -10, 0)),  # 14
    Part.LineSegment(V(-11, -10, 0), V(-20, -10, 0)),  # 15
], False)
sketch15.addConstraint([
    Sketcher.Constraint("Coincident", 0, 2, 1, 1),
    Sketcher.Constraint("Coincident", 1, 2, 2, 1),
    Sketcher.Constraint("Coincident", 2, 2, 3, 1),
    Sketcher.Constraint("Coincident", 3, 2, 0, 1),
    Sketcher.Constraint("Coincident", 4, 2, 5, 1),
    Sketcher.Constraint("Coincident", 5, 2, 6, 1),
    Sketcher.Constraint("Coincident", 6, 2, 7, 1),
    Sketcher.Constraint("Coincident", 7, 2, 4, 1),
    Sketcher.Constraint("Coincident", 8, 2, 9, 1),
    Sketcher.Constraint("Coincident", 9, 2, 10, 1),
    Sketcher.Constraint("Coincident", 10, 2, 11, 1),
    Sketcher.Constraint("Coincident", 11, 2, 8, 1),
    Sketcher.Constraint("Coincident", 12, 2, 13, 1),
    Sketcher.Constraint("Coincident", 13, 2, 14, 1),
    Sketcher.Constraint("Coincident", 14, 2, 15, 1),
    Sketcher.Constraint("Coincident", 15, 2, 12, 1),
    Sketcher.Constraint("Vertical", 0),
    Sketcher.Constraint("Horizontal", 1),
    Sketcher.Constraint("Vertical", 2),
    Sketcher.Constraint("Horizontal", 3),
    Sketcher.Constraint("Vertical", 4),
    Sketcher.Constraint("Horizontal", 5),
    Sketcher.Constraint("Vertical", 6),
    Sketcher.Constraint("Horizontal", 7),
    Sketcher.Constraint("Vertical", 8),
    Sketcher.Constraint("Horizontal", 9),
    Sketcher.Constraint("Vertical", 10),
    Sketcher.Constraint("Horizontal", 11),
    Sketcher.Constraint("Vertical", 12),
    Sketcher.Constraint("Horizontal", 13),
    Sketcher.Constraint("Vertical", 14),
    Sketcher.Constraint("Horizontal", 15),
    Sketcher.Constraint("Symmetric", 7, 2, 12, 2, -1),
    Sketcher.Constraint("Symmetric", 5, 2, 14, 2, -1),
    Sketcher.Constraint("Horizontal", 1, 2, 8, 2),
    Sketcher.Constraint("Horizontal", 3, 2, 10, 2),
    Sketcher.Constraint("Equal", 3, 9),
    Sketcher.Constraint("Equal", 15, 0),
    Sketcher.Constraint("Equal", 11, 4),
    Sketcher.Constraint("DistanceX", 5, 1, 5, 2, Q("9 mm")),
    Sketcher.Constraint("DistanceX", 1, 1, 1, 2, Q("6.5 mm")),
    Sketcher.Constraint("DistanceX", 0, 2, -1, 1, Q("32 mm")),
    Sketcher.Constraint("DistanceY", 0, 2, -1, 1, Q("4.5 mm")),
    Sketcher.Constraint("DistanceX", 8, 2, -1, 1, Q("5.3 mm")),
    Sketcher.Constraint("DistanceX", 4, 2, -1, 1, Q("20.05 mm")),
    Sketcher.Constraint("DistanceY", -1, 1, 4, 2, Q("10.375 mm")),
])
pocket8 = doc.addObject("PartDesign::Pocket", "Pocket007")
body4.addObject(pocket8)
pocket8.Profile = sketch15
pocket8.Length = 7
pocket8.Midplane = True

doc.recompute()
